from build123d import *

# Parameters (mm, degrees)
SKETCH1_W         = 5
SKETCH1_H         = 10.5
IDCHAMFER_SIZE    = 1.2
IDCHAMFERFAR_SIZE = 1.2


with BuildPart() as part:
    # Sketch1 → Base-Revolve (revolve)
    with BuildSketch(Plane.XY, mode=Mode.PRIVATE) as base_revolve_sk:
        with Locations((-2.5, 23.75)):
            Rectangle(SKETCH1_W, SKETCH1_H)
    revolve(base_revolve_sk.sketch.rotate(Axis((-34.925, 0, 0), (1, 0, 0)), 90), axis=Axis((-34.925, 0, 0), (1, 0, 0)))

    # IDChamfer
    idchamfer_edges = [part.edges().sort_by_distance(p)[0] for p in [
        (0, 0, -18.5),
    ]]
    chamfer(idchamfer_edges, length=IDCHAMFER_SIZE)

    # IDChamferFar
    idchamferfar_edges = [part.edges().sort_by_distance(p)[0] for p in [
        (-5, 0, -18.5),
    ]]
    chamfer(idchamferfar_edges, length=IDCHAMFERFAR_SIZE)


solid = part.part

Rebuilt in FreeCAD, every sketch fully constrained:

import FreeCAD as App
import Part
import Sketcher

V = App.Vector


def edges_at(feature, points):
    """Names of the edges that pass closest to the given points."""
    edges = feature.Shape.Edges
    near = lambda p: min(range(len(edges)), key=lambda i: edges[i].distToShape(Part.Vertex(*p))[0])
    return sorted({f"Edge{near(p) + 1}" for p in points})


def add_polygon(sketch, points):
    """Adds a closed chain of lines whose ends are joined by coincident constraints."""
    first, n = sketch.GeometryCount, len(points)
    for a, b in zip(points, points[1:] + points[:1]):
        sketch.addGeometry(Part.LineSegment(App.Vector(*a, 0), App.Vector(*b, 0)), False)
    for i in range(n):
        sketch.addConstraint(Sketcher.Constraint("Coincident", first + i, 2, first + (i + 1) % n, 1))

doc = App.newDocument("Part")
body = doc.addObject("PartDesign::Body", "Body")

# Sketch on XY plane
sketch1 = body.newObject("Sketcher::SketchObject", "Sketch")
sketch1.AttachmentSupport = (doc.getObject("XY_Plane"), [""])
sketch1.MapMode = "FlatFace"
add_polygon(sketch1, [(-5, 29), (-5, 18), (0, 18), (0, 29)])  # lines 0-3
sketch1.addConstraint([
    Sketcher.Constraint("Vertical", 0),
    Sketcher.Constraint("Horizontal", 1),
    Sketcher.Constraint("Vertical", 2),
    Sketcher.Constraint("Horizontal", 3),
    Sketcher.Constraint("PointOnObject", 1, 2, -2),
    Sketcher.Constraint("DistanceX", 1, 1, 1, 2, 5.0),
    Sketcher.Constraint("DistanceY", 0, 2, 0, 1, 10.5),
    Sketcher.Constraint("DistanceY", -1, 1, 2, 2, 29.0),
])
revolution = body.newObject("PartDesign::Revolution", "Revolution")
revolution.Profile = sketch1
revolution.ReferenceAxis = (sketch1, ["H_Axis"])
revolution.Angle = 360
doc.recompute()

chamfer = body.newObject("PartDesign::Chamfer", "Chamfer")
chamfer.Base = (revolution, edges_at(revolution, [(0, 0, -18.5)]))
chamfer.Size = 1.2
doc.recompute()

chamfer2 = body.newObject("PartDesign::Chamfer", "Chamfer001")
chamfer2.Base = (chamfer, edges_at(chamfer, [(-5, 0, -18.5)]))
chamfer2.Size = 1.2

doc.recompute()
